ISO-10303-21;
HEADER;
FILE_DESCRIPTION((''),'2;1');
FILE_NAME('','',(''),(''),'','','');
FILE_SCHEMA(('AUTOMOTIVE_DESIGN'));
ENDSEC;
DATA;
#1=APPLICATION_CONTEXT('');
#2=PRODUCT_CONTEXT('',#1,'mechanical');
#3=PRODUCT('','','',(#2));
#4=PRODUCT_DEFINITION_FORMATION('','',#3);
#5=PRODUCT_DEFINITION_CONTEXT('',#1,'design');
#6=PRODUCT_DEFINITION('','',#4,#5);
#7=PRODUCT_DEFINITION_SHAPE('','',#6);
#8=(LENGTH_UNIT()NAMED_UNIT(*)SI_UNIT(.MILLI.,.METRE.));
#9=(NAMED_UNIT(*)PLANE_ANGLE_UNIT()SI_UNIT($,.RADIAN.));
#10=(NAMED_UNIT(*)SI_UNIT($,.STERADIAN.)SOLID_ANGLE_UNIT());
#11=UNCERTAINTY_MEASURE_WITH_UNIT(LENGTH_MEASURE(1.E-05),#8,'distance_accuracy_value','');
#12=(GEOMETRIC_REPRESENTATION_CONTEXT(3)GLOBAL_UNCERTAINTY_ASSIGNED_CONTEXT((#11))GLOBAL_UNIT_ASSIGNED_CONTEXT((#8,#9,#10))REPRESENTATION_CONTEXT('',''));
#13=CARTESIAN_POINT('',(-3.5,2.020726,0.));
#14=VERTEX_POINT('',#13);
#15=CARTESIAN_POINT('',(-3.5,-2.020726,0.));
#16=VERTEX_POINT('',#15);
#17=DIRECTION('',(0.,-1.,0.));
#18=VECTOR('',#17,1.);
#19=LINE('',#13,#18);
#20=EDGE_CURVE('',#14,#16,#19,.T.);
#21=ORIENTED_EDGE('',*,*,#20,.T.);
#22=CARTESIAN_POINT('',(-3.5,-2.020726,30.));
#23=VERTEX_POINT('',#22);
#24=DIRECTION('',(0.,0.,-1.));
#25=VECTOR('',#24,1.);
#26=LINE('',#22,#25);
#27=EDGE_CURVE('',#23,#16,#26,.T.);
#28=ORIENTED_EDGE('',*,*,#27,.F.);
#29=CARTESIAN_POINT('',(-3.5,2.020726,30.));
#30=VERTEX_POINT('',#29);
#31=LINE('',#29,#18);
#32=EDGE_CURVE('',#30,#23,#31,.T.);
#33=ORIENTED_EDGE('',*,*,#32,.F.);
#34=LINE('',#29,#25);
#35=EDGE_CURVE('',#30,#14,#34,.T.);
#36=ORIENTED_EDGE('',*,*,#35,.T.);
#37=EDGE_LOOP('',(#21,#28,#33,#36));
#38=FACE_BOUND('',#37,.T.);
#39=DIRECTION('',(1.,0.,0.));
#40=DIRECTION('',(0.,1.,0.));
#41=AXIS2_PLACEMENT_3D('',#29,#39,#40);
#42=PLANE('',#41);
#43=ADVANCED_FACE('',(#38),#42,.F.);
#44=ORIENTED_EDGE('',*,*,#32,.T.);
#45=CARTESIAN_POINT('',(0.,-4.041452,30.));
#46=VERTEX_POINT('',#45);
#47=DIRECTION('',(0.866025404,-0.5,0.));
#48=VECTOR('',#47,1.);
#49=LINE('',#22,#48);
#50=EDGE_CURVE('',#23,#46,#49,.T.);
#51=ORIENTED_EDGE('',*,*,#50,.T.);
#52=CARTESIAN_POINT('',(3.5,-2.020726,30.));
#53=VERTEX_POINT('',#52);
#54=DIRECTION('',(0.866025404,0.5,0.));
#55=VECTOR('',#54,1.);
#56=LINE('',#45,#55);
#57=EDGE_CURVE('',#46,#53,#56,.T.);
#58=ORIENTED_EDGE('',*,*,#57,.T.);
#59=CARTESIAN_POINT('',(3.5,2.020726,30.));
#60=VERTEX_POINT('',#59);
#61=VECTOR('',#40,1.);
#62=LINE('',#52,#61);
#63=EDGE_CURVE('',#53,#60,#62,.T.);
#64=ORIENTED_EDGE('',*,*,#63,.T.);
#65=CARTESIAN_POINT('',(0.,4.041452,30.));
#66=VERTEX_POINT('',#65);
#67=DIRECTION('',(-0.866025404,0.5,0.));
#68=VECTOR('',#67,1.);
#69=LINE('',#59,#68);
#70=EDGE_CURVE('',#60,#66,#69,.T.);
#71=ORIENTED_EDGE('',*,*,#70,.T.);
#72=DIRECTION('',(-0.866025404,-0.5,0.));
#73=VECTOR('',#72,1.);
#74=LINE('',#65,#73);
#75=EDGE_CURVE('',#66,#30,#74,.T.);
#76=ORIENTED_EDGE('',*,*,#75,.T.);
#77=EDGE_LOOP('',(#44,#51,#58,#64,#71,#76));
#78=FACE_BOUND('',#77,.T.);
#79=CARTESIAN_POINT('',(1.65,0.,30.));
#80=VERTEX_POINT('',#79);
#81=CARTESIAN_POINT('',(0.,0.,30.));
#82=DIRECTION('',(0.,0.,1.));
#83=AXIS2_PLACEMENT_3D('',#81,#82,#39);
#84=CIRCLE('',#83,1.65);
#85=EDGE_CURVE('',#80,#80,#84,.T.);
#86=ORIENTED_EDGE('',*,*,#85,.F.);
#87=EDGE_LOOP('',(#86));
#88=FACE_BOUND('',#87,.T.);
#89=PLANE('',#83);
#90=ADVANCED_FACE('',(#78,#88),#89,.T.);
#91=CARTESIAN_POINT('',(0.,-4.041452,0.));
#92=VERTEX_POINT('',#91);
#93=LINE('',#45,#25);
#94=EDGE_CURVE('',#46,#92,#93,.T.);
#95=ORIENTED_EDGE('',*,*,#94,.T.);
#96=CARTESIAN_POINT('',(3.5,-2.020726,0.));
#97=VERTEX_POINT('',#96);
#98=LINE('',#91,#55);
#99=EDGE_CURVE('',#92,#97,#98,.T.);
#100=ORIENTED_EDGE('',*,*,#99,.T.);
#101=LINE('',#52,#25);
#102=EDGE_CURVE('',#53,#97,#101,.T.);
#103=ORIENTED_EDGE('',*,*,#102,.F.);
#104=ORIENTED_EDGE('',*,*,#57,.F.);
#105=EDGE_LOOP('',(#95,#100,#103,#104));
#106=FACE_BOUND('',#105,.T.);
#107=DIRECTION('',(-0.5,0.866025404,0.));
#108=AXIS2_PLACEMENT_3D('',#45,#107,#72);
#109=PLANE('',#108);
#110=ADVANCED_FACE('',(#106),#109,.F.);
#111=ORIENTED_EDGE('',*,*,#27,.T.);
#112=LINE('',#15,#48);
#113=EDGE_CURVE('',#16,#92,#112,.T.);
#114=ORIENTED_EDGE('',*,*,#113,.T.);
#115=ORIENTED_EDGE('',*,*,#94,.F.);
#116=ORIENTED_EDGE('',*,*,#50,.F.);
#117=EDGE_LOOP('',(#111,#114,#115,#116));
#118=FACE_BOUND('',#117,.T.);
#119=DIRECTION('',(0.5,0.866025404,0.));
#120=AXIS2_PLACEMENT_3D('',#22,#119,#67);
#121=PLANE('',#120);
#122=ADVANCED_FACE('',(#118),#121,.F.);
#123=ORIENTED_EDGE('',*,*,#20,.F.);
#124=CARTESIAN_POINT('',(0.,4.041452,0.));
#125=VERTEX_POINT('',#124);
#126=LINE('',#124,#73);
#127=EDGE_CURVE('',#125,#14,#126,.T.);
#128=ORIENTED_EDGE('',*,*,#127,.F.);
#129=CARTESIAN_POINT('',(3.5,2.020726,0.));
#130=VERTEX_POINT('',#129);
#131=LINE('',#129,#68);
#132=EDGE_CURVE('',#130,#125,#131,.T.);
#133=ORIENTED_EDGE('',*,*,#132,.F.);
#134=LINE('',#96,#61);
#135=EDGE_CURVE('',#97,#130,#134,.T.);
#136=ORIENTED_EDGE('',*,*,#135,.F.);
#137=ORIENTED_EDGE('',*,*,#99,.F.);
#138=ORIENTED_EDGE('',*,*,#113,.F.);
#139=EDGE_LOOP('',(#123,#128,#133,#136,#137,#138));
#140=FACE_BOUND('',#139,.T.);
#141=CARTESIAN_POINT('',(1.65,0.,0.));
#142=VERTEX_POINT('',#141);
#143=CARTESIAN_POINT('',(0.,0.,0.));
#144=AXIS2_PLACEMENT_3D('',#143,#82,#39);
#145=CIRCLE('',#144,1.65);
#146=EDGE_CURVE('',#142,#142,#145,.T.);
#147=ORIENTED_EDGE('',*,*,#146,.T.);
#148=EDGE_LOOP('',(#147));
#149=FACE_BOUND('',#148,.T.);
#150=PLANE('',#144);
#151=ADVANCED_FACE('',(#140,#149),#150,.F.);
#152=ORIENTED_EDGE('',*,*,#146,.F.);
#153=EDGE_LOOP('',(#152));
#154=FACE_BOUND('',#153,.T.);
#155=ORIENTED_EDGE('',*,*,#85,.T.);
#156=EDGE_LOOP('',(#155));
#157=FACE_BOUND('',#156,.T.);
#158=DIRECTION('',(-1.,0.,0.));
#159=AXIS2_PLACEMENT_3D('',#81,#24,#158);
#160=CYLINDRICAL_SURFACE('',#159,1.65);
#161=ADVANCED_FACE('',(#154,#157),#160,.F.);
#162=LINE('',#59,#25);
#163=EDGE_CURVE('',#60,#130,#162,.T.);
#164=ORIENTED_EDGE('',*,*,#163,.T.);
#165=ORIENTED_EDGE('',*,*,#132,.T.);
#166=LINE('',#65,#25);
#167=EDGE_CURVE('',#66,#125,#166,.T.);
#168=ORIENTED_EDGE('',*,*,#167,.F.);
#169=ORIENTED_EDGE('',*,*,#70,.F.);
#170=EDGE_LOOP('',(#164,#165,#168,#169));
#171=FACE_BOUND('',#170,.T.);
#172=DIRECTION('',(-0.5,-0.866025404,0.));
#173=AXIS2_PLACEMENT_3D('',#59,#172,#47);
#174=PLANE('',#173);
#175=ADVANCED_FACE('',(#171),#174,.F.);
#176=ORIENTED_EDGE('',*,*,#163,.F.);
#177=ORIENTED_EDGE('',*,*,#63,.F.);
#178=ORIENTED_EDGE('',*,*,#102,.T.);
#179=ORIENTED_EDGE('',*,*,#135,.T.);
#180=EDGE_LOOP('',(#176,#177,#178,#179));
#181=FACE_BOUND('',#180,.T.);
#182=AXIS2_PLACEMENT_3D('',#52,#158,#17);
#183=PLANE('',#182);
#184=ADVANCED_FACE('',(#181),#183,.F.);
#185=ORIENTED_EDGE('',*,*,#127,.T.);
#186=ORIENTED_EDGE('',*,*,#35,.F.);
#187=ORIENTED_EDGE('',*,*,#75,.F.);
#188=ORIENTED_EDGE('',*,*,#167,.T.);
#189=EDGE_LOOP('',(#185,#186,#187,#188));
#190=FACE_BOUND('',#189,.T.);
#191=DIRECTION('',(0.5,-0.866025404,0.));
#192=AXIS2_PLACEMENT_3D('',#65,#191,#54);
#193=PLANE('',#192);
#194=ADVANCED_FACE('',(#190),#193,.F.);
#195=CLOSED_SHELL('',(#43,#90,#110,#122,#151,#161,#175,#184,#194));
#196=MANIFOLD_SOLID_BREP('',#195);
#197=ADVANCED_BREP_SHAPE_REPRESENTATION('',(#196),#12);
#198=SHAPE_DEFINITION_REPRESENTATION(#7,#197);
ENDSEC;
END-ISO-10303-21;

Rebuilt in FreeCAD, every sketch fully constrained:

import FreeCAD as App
import Part
import Sketcher
from FreeCAD import Vector
Q = App.Units.Quantity

doc = App.newDocument("Part")
params = doc.addObject("Spreadsheet::Sheet", "Params")
for row, (alias, value) in enumerate([
    ("sketch1_diameter", "3.3 mm"),
    ("pad1_length", "30 mm"),
], start=1):
    params.set(f"A{row}", alias)
    params.set(f"B{row}", "=" + value)
    params.setAlias(f"B{row}", alias)

body = doc.addObject("PartDesign::Body", "Body")

sketch1 = doc.addObject("Sketcher::SketchObject", "Sketch")
body.addObject(sketch1)
sketch1.AttachmentSupport = (doc.XY_Plane, [""])
sketch1.MapMode = "FlatFace"
sketch1.addGeometry([
    Part.LineSegment(Vector(3.5, 2, 0), Vector(0, 4, 0)),
    Part.LineSegment(Vector(0, 4, 0), Vector(-3.5, 2, 0)),
    Part.LineSegment(Vector(-3.5, 2, 0), Vector(-3.5, -2, 0)),
    Part.LineSegment(Vector(-3.5, -2, 0), Vector(0, -4, 0)),
    Part.LineSegment(Vector(0, -4, 0), Vector(3.5, -2, 0)),
    Part.LineSegment(Vector(3.5, -2, 0), Vector(3.5, 2, 0)),
    Part.Circle(Vector(0, 0, 0), Vector(0, 0, 1), 1.6),
], False)
sketch1.addConstraint([
    Sketcher.Constraint("Coincident", 0, 2, 1, 1),
    Sketcher.Constraint("Coincident", 1, 2, 2, 1),
    Sketcher.Constraint("Coincident", 2, 2, 3, 1),
    Sketcher.Constraint("Coincident", 3, 2, 4, 1),
    Sketcher.Constraint("Coincident", 4, 2, 5, 1),
    Sketcher.Constraint("Coincident", 5, 2, 0, 1),
    Sketcher.Constraint("Vertical", 2),
    Sketcher.Constraint("Vertical", 5),
    Sketcher.Constraint("Coincident", 6, 3, -1, 1),
    Sketcher.Constraint("Symmetric", 0, 2, 3, 2, -1, 1),
    Sketcher.Constraint("Symmetric", 1, 2, 4, 2, -1, 1),
    Sketcher.Constraint("PointOnObject", 0, 2, -2),
    Sketcher.Constraint("Parallel", 0, 3),
    Sketcher.Constraint("Horizontal", 2, 2, 4, 2),
    Sketcher.Constraint("Diameter", 6, Q("3.3 mm")),
    Sketcher.Constraint("Angle", 0, Q("150 deg")),
    Sketcher.Constraint("DistanceX", 2, 2, 4, 2, Q("7 mm")),
    Sketcher.Constraint("DistanceY", 2, 2, 2, 1, Q("4.041452 mm")),
])
sketch1.setExpression("Constraints[14]", "Params.sketch1_diameter")
pad1 = doc.addObject("PartDesign::Pad", "Pad")
body.addObject(pad1)
pad1.Profile = sketch1
pad1.setExpression("Length", "Params.pad1_length")

doc.recompute()
